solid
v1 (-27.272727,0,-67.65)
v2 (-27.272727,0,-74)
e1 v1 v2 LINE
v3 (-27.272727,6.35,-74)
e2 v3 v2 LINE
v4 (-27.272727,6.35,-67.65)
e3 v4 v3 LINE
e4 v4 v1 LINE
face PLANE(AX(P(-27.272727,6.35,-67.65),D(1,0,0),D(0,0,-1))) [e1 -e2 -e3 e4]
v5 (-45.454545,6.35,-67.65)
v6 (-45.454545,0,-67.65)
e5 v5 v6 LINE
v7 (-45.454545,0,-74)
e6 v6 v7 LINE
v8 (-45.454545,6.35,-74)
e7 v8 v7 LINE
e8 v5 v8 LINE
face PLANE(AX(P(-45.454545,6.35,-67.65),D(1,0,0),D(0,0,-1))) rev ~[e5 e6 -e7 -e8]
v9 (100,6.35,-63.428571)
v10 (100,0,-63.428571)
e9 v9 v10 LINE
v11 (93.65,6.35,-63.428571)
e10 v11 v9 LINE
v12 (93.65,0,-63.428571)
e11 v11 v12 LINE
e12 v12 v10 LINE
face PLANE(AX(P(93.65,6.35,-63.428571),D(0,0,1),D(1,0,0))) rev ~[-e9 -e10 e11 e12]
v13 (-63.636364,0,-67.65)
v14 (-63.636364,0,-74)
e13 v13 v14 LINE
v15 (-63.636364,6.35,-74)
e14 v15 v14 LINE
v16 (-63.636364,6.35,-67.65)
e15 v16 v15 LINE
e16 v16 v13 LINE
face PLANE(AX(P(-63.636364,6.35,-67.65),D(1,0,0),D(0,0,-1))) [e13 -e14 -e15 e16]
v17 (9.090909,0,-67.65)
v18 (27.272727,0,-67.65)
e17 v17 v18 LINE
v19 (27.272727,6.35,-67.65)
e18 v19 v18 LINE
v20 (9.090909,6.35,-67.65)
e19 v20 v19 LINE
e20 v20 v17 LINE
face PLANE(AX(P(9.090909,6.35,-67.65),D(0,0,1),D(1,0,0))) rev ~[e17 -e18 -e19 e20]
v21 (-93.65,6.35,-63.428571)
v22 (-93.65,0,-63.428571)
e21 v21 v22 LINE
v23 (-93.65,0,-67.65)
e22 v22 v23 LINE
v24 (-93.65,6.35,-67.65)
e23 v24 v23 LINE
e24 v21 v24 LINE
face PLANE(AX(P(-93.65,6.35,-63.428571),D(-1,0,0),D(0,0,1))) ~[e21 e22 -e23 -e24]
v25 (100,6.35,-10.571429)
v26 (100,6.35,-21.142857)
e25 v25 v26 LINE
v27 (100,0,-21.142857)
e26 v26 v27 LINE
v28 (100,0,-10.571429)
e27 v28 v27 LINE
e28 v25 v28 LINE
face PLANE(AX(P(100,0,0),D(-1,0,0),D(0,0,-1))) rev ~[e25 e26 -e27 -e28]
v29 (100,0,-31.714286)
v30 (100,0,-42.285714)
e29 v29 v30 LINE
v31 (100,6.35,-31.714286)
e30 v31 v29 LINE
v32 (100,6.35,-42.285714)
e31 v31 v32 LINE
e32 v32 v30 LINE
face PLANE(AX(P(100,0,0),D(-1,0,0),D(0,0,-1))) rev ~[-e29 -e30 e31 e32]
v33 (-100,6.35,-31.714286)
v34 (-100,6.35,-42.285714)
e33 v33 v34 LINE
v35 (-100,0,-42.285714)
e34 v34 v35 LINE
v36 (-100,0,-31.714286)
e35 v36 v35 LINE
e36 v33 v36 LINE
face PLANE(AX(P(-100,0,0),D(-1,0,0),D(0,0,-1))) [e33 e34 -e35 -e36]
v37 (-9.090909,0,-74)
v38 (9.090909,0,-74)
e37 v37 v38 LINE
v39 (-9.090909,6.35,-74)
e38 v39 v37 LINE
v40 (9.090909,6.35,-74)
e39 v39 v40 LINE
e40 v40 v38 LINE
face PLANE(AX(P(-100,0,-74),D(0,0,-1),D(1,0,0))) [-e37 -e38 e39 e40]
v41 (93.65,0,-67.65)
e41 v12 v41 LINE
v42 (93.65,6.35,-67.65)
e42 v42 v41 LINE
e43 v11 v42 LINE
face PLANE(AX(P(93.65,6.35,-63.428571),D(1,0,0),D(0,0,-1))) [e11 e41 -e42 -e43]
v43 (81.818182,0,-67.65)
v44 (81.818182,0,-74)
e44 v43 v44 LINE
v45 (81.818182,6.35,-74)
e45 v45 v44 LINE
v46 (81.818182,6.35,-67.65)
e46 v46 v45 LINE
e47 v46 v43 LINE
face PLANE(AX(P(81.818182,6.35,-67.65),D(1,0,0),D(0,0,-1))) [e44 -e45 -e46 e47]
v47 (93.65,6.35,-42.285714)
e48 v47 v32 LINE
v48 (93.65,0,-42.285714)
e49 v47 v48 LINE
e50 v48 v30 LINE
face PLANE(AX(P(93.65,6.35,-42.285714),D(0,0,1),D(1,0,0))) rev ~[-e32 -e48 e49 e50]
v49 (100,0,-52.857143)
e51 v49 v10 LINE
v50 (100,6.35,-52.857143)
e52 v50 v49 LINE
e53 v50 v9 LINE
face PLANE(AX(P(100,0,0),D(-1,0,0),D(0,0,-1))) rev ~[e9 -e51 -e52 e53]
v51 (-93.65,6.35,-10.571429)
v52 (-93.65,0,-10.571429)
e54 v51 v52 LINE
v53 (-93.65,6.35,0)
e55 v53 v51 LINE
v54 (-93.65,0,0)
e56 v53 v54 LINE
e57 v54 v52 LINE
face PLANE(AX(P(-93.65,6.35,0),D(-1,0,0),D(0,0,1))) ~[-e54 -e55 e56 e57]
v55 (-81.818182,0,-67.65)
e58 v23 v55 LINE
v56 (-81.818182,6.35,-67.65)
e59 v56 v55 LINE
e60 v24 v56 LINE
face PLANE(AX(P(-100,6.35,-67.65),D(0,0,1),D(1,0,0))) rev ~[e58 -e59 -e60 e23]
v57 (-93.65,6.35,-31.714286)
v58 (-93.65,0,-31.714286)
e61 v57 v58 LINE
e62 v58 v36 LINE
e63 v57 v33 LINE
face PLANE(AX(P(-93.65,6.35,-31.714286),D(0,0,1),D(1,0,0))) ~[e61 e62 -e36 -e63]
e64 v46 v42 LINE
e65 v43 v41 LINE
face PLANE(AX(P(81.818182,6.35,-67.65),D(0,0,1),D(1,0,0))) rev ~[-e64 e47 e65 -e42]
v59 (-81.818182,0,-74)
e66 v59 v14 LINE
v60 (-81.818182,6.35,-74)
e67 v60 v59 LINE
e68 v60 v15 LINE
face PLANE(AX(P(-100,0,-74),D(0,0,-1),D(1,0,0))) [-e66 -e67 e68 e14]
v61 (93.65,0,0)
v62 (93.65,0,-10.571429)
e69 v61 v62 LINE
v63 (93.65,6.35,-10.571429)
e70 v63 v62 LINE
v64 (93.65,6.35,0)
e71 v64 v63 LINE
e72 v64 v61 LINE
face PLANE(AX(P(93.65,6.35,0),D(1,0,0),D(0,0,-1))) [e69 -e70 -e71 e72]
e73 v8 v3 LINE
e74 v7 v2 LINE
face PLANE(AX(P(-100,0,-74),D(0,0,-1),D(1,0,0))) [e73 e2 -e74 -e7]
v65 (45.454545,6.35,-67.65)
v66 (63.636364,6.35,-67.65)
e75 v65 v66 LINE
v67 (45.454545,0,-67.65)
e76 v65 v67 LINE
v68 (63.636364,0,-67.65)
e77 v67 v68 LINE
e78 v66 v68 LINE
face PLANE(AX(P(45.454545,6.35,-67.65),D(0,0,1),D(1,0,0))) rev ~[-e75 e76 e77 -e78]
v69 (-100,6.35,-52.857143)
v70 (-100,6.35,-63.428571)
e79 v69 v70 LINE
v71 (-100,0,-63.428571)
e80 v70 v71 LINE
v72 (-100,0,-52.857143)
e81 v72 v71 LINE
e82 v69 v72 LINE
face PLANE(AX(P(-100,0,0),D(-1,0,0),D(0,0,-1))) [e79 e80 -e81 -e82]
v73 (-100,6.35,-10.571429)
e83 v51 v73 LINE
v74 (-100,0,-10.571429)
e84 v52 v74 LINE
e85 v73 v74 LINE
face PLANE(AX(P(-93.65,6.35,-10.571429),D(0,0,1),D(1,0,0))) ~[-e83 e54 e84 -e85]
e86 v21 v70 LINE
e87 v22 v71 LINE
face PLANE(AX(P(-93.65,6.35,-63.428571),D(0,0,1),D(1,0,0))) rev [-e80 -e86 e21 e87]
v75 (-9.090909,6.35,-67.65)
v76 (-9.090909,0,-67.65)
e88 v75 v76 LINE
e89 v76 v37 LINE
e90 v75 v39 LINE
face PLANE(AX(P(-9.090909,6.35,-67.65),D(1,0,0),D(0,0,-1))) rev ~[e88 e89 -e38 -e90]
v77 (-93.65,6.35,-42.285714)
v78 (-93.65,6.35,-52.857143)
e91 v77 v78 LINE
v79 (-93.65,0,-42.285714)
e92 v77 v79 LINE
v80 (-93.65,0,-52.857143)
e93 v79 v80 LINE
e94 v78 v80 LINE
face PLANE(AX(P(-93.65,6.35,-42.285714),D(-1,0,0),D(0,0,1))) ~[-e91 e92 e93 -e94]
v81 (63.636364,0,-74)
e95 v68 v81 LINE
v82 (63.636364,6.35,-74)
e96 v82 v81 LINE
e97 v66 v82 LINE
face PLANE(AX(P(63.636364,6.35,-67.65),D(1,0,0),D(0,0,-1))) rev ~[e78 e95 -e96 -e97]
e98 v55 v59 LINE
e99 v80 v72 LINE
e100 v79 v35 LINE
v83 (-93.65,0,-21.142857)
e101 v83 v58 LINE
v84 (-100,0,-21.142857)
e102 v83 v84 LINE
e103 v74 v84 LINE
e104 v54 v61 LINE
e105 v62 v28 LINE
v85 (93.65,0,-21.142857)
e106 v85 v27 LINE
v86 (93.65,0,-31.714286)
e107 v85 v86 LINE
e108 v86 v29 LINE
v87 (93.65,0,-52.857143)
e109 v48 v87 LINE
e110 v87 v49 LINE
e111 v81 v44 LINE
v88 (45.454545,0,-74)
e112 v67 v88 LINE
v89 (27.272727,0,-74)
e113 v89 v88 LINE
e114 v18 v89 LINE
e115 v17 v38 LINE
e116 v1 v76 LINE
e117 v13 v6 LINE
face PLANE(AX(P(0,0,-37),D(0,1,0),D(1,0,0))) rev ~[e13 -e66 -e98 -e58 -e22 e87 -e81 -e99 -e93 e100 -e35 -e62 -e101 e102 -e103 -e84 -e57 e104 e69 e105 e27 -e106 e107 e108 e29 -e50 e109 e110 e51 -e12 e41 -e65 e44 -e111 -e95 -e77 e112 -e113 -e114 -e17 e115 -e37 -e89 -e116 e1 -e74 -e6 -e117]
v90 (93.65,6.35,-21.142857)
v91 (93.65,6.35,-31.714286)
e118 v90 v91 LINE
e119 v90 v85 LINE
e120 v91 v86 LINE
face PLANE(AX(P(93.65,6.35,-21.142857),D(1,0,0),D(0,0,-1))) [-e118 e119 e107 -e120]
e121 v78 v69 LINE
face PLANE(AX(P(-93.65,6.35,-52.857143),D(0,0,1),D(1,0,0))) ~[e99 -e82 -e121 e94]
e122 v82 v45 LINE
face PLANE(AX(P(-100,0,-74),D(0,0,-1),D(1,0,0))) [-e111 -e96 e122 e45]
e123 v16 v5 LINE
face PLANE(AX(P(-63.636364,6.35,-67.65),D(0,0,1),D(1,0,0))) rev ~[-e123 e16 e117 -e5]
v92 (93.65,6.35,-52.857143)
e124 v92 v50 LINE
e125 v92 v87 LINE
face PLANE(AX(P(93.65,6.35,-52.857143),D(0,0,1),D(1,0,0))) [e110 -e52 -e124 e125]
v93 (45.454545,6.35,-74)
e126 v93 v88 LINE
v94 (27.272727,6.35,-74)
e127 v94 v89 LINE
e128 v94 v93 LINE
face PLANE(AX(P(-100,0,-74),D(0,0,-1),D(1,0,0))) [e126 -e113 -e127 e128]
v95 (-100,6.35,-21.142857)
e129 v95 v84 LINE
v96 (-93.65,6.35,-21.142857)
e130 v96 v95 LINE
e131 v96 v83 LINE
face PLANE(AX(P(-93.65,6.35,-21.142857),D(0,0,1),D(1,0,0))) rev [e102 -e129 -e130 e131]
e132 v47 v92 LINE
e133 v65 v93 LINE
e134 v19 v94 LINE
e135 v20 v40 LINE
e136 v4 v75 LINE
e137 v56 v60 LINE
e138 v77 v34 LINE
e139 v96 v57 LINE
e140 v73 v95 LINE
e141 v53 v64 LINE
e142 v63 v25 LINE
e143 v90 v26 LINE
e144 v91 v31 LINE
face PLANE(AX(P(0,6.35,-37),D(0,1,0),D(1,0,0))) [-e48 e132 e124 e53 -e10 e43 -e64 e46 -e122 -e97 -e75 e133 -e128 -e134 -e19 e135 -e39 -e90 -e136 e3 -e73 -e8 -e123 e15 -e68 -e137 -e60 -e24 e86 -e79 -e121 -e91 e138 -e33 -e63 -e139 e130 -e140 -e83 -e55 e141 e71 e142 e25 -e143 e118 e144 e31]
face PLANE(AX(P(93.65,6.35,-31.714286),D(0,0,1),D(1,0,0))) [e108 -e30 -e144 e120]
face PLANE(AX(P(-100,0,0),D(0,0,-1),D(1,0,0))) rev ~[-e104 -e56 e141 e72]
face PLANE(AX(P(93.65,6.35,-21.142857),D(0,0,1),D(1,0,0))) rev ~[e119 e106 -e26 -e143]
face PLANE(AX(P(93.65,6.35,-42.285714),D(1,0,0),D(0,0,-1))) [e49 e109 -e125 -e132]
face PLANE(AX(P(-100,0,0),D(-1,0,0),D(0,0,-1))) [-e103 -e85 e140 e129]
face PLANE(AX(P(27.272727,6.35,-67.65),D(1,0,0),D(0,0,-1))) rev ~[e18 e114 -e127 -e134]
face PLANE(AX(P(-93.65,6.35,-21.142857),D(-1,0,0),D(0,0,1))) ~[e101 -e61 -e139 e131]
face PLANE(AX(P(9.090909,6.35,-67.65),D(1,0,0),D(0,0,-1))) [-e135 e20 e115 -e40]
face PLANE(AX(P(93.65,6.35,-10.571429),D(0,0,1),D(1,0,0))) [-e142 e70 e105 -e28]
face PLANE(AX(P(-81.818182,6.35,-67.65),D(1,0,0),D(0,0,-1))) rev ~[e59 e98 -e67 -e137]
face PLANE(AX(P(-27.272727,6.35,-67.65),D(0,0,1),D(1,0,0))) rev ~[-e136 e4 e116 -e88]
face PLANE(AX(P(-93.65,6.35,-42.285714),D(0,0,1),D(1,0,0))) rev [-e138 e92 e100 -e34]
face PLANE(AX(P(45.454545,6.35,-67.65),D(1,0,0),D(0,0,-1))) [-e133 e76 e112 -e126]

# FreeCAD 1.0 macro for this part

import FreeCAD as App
import Part
import Sketcher

doc = App.newDocument("Part")
body = doc.addObject("PartDesign::Body", "Body")

sketch1 = body.newObject("Sketcher::SketchObject", "Sketch")
sketch1.AttachmentSupport = (doc.getObject("XZ_Plane"), [""])
sketch1.MapMode = "FlatFace"
sketch1.addGeometry(Part.LineSegment(App.Vector(-100, -74, 0), App.Vector(-100, 0, 0)), False)
sketch1.addGeometry(Part.LineSegment(App.Vector(-100, 0, 0), App.Vector(100, 0, 0)), False)
sketch1.addGeometry(Part.LineSegment(App.Vector(100, 0, 0), App.Vector(100, -74, 0)), False)
sketch1.addGeometry(Part.LineSegment(App.Vector(100, -74, 0), App.Vector(-100, -74, 0)), False)
sketch1.addConstraint(Sketcher.Constraint("Coincident", 0, 2, 1, 1))
sketch1.addConstraint(Sketcher.Constraint("Coincident", 1, 2, 2, 1))
sketch1.addConstraint(Sketcher.Constraint("Coincident", 2, 2, 3, 1))
sketch1.addConstraint(Sketcher.Constraint("Coincident", 3, 2, 0, 1))
sketch1.addConstraint(Sketcher.Constraint("Vertical", 0))
sketch1.addConstraint(Sketcher.Constraint("Horizontal", 1))
sketch1.addConstraint(Sketcher.Constraint("Vertical", 2))
sketch1.addConstraint(Sketcher.Constraint("Horizontal", 3))
sketch1.addConstraint(Sketcher.Constraint("Symmetric", 0, 2, 1, 2, -1, 1))
sketch1.addConstraint(Sketcher.Constraint("DistanceX", 1, 1, 1, 2, 200.0))
sketch1.addConstraint(Sketcher.Constraint("DistanceY", 0, 1, 0, 2, 74.0))
pad1 = body.newObject("PartDesign::Pad", "Pad")
pad1.Profile = sketch1
pad1.Length = 6.35
pad1.Reversed = True

sketch2 = body.newObject("Sketcher::SketchObject", "Sketch001")
sketch2.AttachmentSupport = (doc.getObject("XZ_Plane"), [""])
sketch2.MapMode = "FlatFace"
sketch2.AttachmentOffset = App.Placement(App.Vector(0, 0, -6.35), App.Rotation())
sketch2.addGeometry(Part.LineSegment(App.Vector(94, -74, 0), App.Vector(94, -63, 0)), False)
sketch2.addGeometry(Part.LineSegment(App.Vector(94, -63, 0), App.Vector(100, -63, 0)), False)
sketch2.addGeometry(Part.LineSegment(App.Vector(100, -63, 0), App.Vector(100, -74, 0)), False)
sketch2.addGeometry(Part.LineSegment(App.Vector(100, -74, 0), App.Vector(94, -74, 0)), False)
sketch2.addGeometry(Part.LineSegment(App.Vector(94, -53, 0), App.Vector(94, -42, 0)), False)
sketch2.addGeometry(Part.LineSegment(App.Vector(94, -42, 0), App.Vector(100, -42, 0)), False)
sketch2.addGeometry(Part.LineSegment(App.Vector(100, -42, 0), App.Vector(100, -53, 0)), False)
sketch2.addGeometry(Part.LineSegment(App.Vector(100, -53, 0), App.Vector(94, -53, 0)), False)
sketch2.addGeometry(Part.LineSegment(App.Vector(94, -32, 0), App.Vector(94, -21, 0)), False)
sketch2.addGeometry(Part.LineSegment(App.Vector(94, -21, 0), App.Vector(100, -21, 0)), False)
sketch2.addGeometry(Part.LineSegment(App.Vector(100, -21, 0), App.Vector(100, -32, 0)), False)
sketch2.addGeometry(Part.LineSegment(App.Vector(100, -32, 0), App.Vector(94, -32, 0)), False)
sketch2.addGeometry(Part.LineSegment(App.Vector(94, -11, 0), App.Vector(94, 0, 0)), False)
sketch2.addGeometry(Part.LineSegment(App.Vector(94, 0, 0), App.Vector(100, 0, 0)), False)
sketch2.addGeometry(Part.LineSegment(App.Vector(100, 0, 0), App.Vector(100, -11, 0)), False)
sketch2.addGeometry(Part.LineSegment(App.Vector(100, -11, 0), App.Vector(94, -11, 0)), False)
sketch2.addConstraint(Sketcher.Constraint("Coincident", 0, 2, 1, 1))
sketch2.addConstraint(Sketcher.Constraint("Coincident", 1, 2, 2, 1))
sketch2.addConstraint(Sketcher.Constraint("Coincident", 2, 2, 3, 1))
sketch2.addConstraint(Sketcher.Constraint("Coincident", 3, 2, 0, 1))
sketch2.addConstraint(Sketcher.Constraint("Coincident", 4, 2, 5, 1))
sketch2.addConstraint(Sketcher.Constraint("Coincident", 5, 2, 6, 1))
sketch2.addConstraint(Sketcher.Constraint("Coincident", 6, 2, 7, 1))
sketch2.addConstraint(Sketcher.Constraint("Coincident", 7, 2, 4, 1))
sketch2.addConstraint(Sketcher.Constraint("Coincident", 8, 2, 9, 1))
sketch2.addConstraint(Sketcher.Constraint("Coincident", 9, 2, 10, 1))
sketch2.addConstraint(Sketcher.Constraint("Coincident", 10, 2, 11, 1))
sketch2.addConstraint(Sketcher.Constraint("Coincident", 11, 2, 8, 1))
sketch2.addConstraint(Sketcher.Constraint("Coincident", 12, 2, 13, 1))
sketch2.addConstraint(Sketcher.Constraint("Coincident", 13, 2, 14, 1))
sketch2.addConstraint(Sketcher.Constraint("Coincident", 14, 2, 15, 1))
sketch2.addConstraint(Sketcher.Constraint("Coincident", 15, 2, 12, 1))
sketch2.addConstraint(Sketcher.Constraint("Vertical", 0))
sketch2.addConstraint(Sketcher.Constraint("Horizontal", 1))
sketch2.addConstraint(Sketcher.Constraint("Vertical", 2))
sketch2.addConstraint(Sketcher.Constraint("Horizontal", 3))
sketch2.addConstraint(Sketcher.Constraint("Vertical", 4))
sketch2.addConstraint(Sketcher.Constraint("Horizontal", 5))
sketch2.addConstraint(Sketcher.Constraint("Vertical", 6))
sketch2.addConstraint(Sketcher.Constraint("Horizontal", 7))
sketch2.addConstraint(Sketcher.Constraint("Vertical", 8))
sketch2.addConstraint(Sketcher.Constraint("Horizontal", 9))
sketch2.addConstraint(Sketcher.Constraint("Vertical", 10))
sketch2.addConstraint(Sketcher.Constraint("Horizontal", 11))
sketch2.addConstraint(Sketcher.Constraint("Vertical", 12))
sketch2.addConstraint(Sketcher.Constraint("Horizontal", 13))
sketch2.addConstraint(Sketcher.Constraint("Vertical", 14))
sketch2.addConstraint(Sketcher.Constraint("Horizontal", 15))
sketch2.addConstraint(Sketcher.Constraint("PointOnObject", 12, 2, -1))
sketch2.addConstraint(Sketcher.Constraint("Vertical", 3, 2, 4, 2))
sketch2.addConstraint(Sketcher.Constraint("Vertical", 2, 2, 5, 2))
sketch2.addConstraint(Sketcher.Constraint("Vertical", 7, 2, 8, 2))
sketch2.addConstraint(Sketcher.Constraint("Vertical", 6, 2, 9, 2))
sketch2.addConstraint(Sketcher.Constraint("Vertical", 11, 2, 12, 2))
sketch2.addConstraint(Sketcher.Constraint("Vertical", 10, 2, 13, 2))
sketch2.addConstraint(Sketcher.Constraint("Equal", 2, 4))
sketch2.addConstraint(Sketcher.Constraint("Equal", 6, 8))
sketch2.addConstraint(Sketcher.Constraint("Equal", 10, 12))
sketch2.addConstraint(Sketcher.Constraint("DistanceX", -1, 1, 1, 2, 100.0))
sketch2.addConstraint(Sketcher.Constraint("DistanceY", 2, 2, -1, 1, 74.0))
sketch2.addConstraint(Sketcher.Constraint("DistanceX", 1, 1, 1, 2, 6.35))
sketch2.addConstraint(Sketcher.Constraint("DistanceY", 0, 1, 0, 2, 10.571429))
sketch2.addConstraint(Sketcher.Constraint("DistanceY", 1, 2, 6, 2, 10.571429))
sketch2.addConstraint(Sketcher.Constraint("DistanceY", 5, 2, 10, 2, 10.571429))
pocket1 = body.newObject("PartDesign::Pocket", "Pocket")
pocket1.Profile = sketch2
pocket1.Length = 6.35
pocket1.Reversed = True
doc.recompute()

mirrored = body.newObject("PartDesign::Mirrored", "Mirrored")
mirrored.Originals = [pocket1]
mirrored.MirrorPlane = (doc.getObject("YZ_Plane"), [""])
body.Tip = mirrored

sketch3 = body.newObject("Sketcher::SketchObject", "Sketch002")
sketch3.AttachmentSupport = (doc.getObject("XZ_Plane"), [""])
sketch3.MapMode = "FlatFace"
sketch3.AttachmentOffset = App.Placement(App.Vector(0, 0, -6.35), App.Rotation())
sketch3.addGeometry(Part.LineSegment(App.Vector(-100, -74, 0), App.Vector(-100, -68, 0)), False)
sketch3.addGeometry(Part.LineSegment(App.Vector(-100, -68, 0), App.Vector(-82, -68, 0)), False)
sketch3.addGeometry(Part.LineSegment(App.Vector(-82, -68, 0), App.Vector(-82, -74, 0)), False)
sketch3.addGeometry(Part.LineSegment(App.Vector(-82, -74, 0), App.Vector(-100, -74, 0)), False)
sketch3.addGeometry(Part.LineSegment(App.Vector(-64, -74, 0), App.Vector(-64, -68, 0)), False)
sketch3.addGeometry(Part.LineSegment(App.Vector(-64, -68, 0), App.Vector(-45, -68, 0)), False)
sketch3.addGeometry(Part.LineSegment(App.Vector(-45, -68, 0), App.Vector(-45, -74, 0)), False)
sketch3.addGeometry(Part.LineSegment(App.Vector(-45, -74, 0), App.Vector(-64, -74, 0)), False)
sketch3.addGeometry(Part.LineSegment(App.Vector(-27, -74, 0), App.Vector(-27, -68, 0)), False)
sketch3.addGeometry(Part.LineSegment(App.Vector(-27, -68, 0), App.Vector(-9, -68, 0)), False)
sketch3.addGeometry(Part.LineSegment(App.Vector(-9, -68, 0), App.Vector(-9, -74, 0)), False)
sketch3.addGeometry(Part.LineSegment(App.Vector(-9, -74, 0), App.Vector(-27, -74, 0)), False)
sketch3.addGeometry(Part.LineSegment(App.Vector(9, -74, 0), App.Vector(9, -68, 0)), False)
sketch3.addGeometry(Part.LineSegment(App.Vector(9, -68, 0), App.Vector(27, -68, 0)), False)
sketch3.addGeometry(Part.LineSegment(App.Vector(27, -68, 0), App.Vector(27, -74, 0)), False)
sketch3.addGeometry(Part.LineSegment(App.Vector(27, -74, 0), App.Vector(9, -74, 0)), False)
sketch3.addGeometry(Part.LineSegment(App.Vector(45, -74, 0), App.Vector(45, -68, 0)), False)
sketch3.addGeometry(Part.LineSegment(App.Vector(45, -68, 0), App.Vector(64, -68, 0)), False)
sketch3.addGeometry(Part.LineSegment(App.Vector(64, -68, 0), App.Vector(64, -74, 0)), False)
sketch3.addGeometry(Part.LineSegment(App.Vector(64, -74, 0), App.Vector(45, -74, 0)), False)
sketch3.addGeometry(Part.LineSegment(App.Vector(82, -74, 0), App.Vector(82, -68, 0)), False)
sketch3.addGeometry(Part.LineSegment(App.Vector(82, -68, 0), App.Vector(100, -68, 0)), False)
sketch3.addGeometry(Part.LineSegment(App.Vector(100, -68, 0), App.Vector(100, -74, 0)), False)
sketch3.addGeometry(Part.LineSegment(App.Vector(100, -74, 0), App.Vector(82, -74, 0)), False)
sketch3.addConstraint(Sketcher.Constraint("Coincident", 0, 2, 1, 1))
sketch3.addConstraint(Sketcher.Constraint("Coincident", 1, 2, 2, 1))
sketch3.addConstraint(Sketcher.Constraint("Coincident", 2, 2, 3, 1))
sketch3.addConstraint(Sketcher.Constraint("Coincident", 3, 2, 0, 1))
sketch3.addConstraint(Sketcher.Constraint("Coincident", 4, 2, 5, 1))
sketch3.addConstraint(Sketcher.Constraint("Coincident", 5, 2, 6, 1))
sketch3.addConstraint(Sketcher.Constraint("Coincident", 6, 2, 7, 1))
sketch3.addConstraint(Sketcher.Constraint("Coincident", 7, 2, 4, 1))
sketch3.addConstraint(Sketcher.Constraint("Coincident", 8, 2, 9, 1))
sketch3.addConstraint(Sketcher.Constraint("Coincident", 9, 2, 10, 1))
sketch3.addConstraint(Sketcher.Constraint("Coincident", 10, 2, 11, 1))
sketch3.addConstraint(Sketcher.Constraint("Coincident", 11, 2, 8, 1))
sketch3.addConstraint(Sketcher.Constraint("Coincident", 12, 2, 13, 1))
sketch3.addConstraint(Sketcher.Constraint("Coincident", 13, 2, 14, 1))
sketch3.addConstraint(Sketcher.Constraint("Coincident", 14, 2, 15, 1))
sketch3.addConstraint(Sketcher.Constraint("Coincident", 15, 2, 12, 1))
sketch3.addConstraint(Sketcher.Constraint("Coincident", 16, 2, 17, 1))
sketch3.addConstraint(Sketcher.Constraint("Coincident", 17, 2, 18, 1))
sketch3.addConstraint(Sketcher.Constraint("Coincident", 18, 2, 19, 1))
sketch3.addConstraint(Sketcher.Constraint("Coincident", 19, 2, 16, 1))
sketch3.addConstraint(Sketcher.Constraint("Coincident", 20, 2, 21, 1))
sketch3.addConstraint(Sketcher.Constraint("Coincident", 21, 2, 22, 1))
sketch3.addConstraint(Sketcher.Constraint("Coincident", 22, 2, 23, 1))
sketch3.addConstraint(Sketcher.Constraint("Coincident", 23, 2, 20, 1))
sketch3.addConstraint(Sketcher.Constraint("Vertical", 0))
sketch3.addConstraint(Sketcher.Constraint("Horizontal", 1))
sketch3.addConstraint(Sketcher.Constraint("Vertical", 2))
sketch3.addConstraint(Sketcher.Constraint("Horizontal", 3))
sketch3.addConstraint(Sketcher.Constraint("Vertical", 4))
sketch3.addConstraint(Sketcher.Constraint("Horizontal", 5))
sketch3.addConstraint(Sketcher.Constraint("Vertical", 6))
sketch3.addConstraint(Sketcher.Constraint("Horizontal", 7))
sketch3.addConstraint(Sketcher.Constraint("Vertical", 8))
sketch3.addConstraint(Sketcher.Constraint("Horizontal", 9))
sketch3.addConstraint(Sketcher.Constraint("Vertical", 10))
sketch3.addConstraint(Sketcher.Constraint("Horizontal", 11))
sketch3.addConstraint(Sketcher.Constraint("Vertical", 12))
sketch3.addConstraint(Sketcher.Constraint("Horizontal", 13))
sketch3.addConstraint(Sketcher.Constraint("Vertical", 14))
sketch3.addConstraint(Sketcher.Constraint("Horizontal", 15))
sketch3.addConstraint(Sketcher.Constraint("Vertical", 16))
sketch3.addConstraint(Sketcher.Constraint("Horizontal", 17))
sketch3.addConstraint(Sketcher.Constraint("Vertical", 18))
sketch3.addConstraint(Sketcher.Constraint("Horizontal", 19))
sketch3.addConstraint(Sketcher.Constraint("Vertical", 20))
sketch3.addConstraint(Sketcher.Constraint("Horizontal", 21))
sketch3.addConstraint(Sketcher.Constraint("Vertical", 22))
sketch3.addConstraint(Sketcher.Constraint("Horizontal", 23))
sketch3.addConstraint(Sketcher.Constraint("Symmetric", 9, 2, 12, 2, -2))
sketch3.addConstraint(Sketcher.Constraint("Symmetric", 11, 2, 14, 2, -2))
sketch3.addConstraint(Sketcher.Constraint("Symmetric", 5, 2, 16, 2, -2))
sketch3.addConstraint(Sketcher.Constraint("Symmetric", 7, 2, 18, 2, -2))
sketch3.addConstraint(Sketcher.Constraint("Symmetric", 1, 2, 20, 2, -2))
sketch3.addConstraint(Sketcher.Constraint("Symmetric", 3, 2, 22, 2, -2))
sketch3.addConstraint(Sketcher.Constraint("Horizontal", 1, 2, 4, 2))
sketch3.addConstraint(Sketcher.Constraint("Horizontal", 3, 2, 6, 2))
sketch3.addConstraint(Sketcher.Constraint("Horizontal", 5, 2, 8, 2))
sketch3.addConstraint(Sketcher.Constraint("Horizontal", 7, 2, 10, 2))
sketch3.addConstraint(Sketcher.Constraint("Equal", 3, 5))
sketch3.addConstraint(Sketcher.Constraint("Equal", 7, 9))
sketch3.addConstraint(Sketcher.Constraint("DistanceX", 0, 2, -1, 1, 100.0))
sketch3.addConstraint(Sketcher.Constraint("DistanceY", 2, 2, -1, 1, 74.0))
sketch3.addConstraint(Sketcher.Constraint("DistanceY", 0, 1, 0, 2, 6.35))
sketch3.addConstraint(Sketcher.Constraint("DistanceX", 1, 1, 1, 2, 18.181818))
sketch3.addConstraint(Sketcher.Constraint("DistanceX", 9, 2, -1, 1, 9.090909))
sketch3.addConstraint(Sketcher.Constraint("DistanceX", 1, 2, 4, 2, 18.181818))
pocket2 = body.newObject("PartDesign::Pocket", "Pocket001")
pocket2.Profile = sketch3
pocket2.Length = 6.35
pocket2.Reversed = True

doc.recompute()
